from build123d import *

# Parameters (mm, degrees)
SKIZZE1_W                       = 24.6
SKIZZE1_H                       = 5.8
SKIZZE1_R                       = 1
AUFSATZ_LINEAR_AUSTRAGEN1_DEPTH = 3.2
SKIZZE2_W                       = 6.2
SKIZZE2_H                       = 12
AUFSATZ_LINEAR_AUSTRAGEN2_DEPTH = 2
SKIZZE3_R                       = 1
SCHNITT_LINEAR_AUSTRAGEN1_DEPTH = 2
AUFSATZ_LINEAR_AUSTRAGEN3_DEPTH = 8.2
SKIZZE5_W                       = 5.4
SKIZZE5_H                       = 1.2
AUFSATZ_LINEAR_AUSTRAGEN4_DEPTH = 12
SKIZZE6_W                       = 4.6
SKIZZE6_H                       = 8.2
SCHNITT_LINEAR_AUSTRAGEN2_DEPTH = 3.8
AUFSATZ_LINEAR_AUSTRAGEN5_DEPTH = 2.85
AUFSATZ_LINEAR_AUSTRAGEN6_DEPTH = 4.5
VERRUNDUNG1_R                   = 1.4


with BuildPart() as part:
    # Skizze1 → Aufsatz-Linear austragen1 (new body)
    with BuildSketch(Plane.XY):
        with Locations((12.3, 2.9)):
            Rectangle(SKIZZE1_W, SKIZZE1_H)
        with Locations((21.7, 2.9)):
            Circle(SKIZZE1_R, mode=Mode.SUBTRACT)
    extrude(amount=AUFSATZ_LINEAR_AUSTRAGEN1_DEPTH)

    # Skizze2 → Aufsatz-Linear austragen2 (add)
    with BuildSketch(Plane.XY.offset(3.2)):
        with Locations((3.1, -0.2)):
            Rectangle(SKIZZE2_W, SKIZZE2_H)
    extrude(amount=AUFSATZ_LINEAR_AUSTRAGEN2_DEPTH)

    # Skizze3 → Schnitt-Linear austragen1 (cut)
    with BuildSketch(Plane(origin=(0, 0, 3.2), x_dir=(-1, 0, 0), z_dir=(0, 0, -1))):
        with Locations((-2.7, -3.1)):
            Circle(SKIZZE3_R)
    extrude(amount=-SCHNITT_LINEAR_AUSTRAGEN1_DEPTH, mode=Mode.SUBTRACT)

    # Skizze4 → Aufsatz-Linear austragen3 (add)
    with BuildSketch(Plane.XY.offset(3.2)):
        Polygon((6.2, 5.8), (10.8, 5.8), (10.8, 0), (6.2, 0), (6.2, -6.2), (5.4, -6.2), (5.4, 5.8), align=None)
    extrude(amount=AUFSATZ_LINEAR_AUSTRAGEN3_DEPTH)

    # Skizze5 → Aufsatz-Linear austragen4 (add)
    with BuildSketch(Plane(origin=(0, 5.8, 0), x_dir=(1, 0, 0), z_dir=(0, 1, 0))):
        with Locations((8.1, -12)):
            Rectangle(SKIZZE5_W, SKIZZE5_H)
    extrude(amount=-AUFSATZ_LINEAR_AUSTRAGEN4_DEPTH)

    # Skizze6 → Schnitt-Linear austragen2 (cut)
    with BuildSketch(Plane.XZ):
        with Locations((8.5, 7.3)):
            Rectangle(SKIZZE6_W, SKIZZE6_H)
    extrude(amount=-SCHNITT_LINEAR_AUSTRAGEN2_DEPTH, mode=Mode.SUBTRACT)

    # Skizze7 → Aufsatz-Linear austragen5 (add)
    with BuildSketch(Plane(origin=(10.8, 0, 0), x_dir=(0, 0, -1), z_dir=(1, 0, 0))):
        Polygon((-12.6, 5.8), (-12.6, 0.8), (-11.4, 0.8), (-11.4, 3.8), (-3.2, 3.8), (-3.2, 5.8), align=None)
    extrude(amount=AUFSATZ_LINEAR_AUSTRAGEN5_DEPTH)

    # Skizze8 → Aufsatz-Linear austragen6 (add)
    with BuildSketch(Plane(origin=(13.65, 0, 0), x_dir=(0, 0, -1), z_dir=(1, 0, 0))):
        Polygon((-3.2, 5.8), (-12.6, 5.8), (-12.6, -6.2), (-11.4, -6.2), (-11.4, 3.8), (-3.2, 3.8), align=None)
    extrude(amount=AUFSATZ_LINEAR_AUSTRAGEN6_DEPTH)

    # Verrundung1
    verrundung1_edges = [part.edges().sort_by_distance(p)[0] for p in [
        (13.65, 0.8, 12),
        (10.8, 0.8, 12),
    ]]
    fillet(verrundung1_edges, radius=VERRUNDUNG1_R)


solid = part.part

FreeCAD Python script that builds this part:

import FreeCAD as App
import Part
import Sketcher

V = App.Vector


def edges_at(feature, points):
    """Names of the edges that pass closest to the given points."""
    edges = feature.Shape.Edges
    near = lambda p: min(range(len(edges)), key=lambda i: edges[i].distToShape(Part.Vertex(*p))[0])
    return sorted({f"Edge{near(p) + 1}" for p in points})

doc = App.newDocument("Part")
body = doc.addObject("PartDesign::Body", "Body")

# Sketch on XY plane
sketch1 = body.newObject("Sketcher::SketchObject", "Sketch")
sketch1.AttachmentSupport = (doc.getObject("XY_Plane"), [""])
sketch1.MapMode = "FlatFace"
sketch1.addGeometry([
    Part.LineSegment(V(0, 5.8, 0), V(0, 0, 0)),  # 0
    Part.LineSegment(V(0, 0, 0), V(24.6, 0, 0)),  # 1
    Part.LineSegment(V(24.6, 0, 0), V(24.6, 5.8, 0)),  # 2
    Part.LineSegment(V(24.6, 5.8, 0), V(0, 5.8, 0)),  # 3
    Part.Circle(V(21.7, 2.9, 0), V(0, 0, 1), 1),  # 4
], False)
sketch1.addConstraint([
    Sketcher.Constraint("Coincident", 0, 2, 1, 1),
    Sketcher.Constraint("Coincident", 1, 2, 2, 1),
    Sketcher.Constraint("Coincident", 2, 2, 3, 1),
    Sketcher.Constraint("Coincident", 3, 2, 0, 1),
    Sketcher.Constraint("Vertical", 0),
    Sketcher.Constraint("Horizontal", 1),
    Sketcher.Constraint("Vertical", 2),
    Sketcher.Constraint("Horizontal", 3),
    Sketcher.Constraint("Coincident", 0, 2, -1, 1),
    Sketcher.Constraint("Diameter", 4, 2.0),
    Sketcher.Constraint("DistanceX", 1, 1, 1, 2, 24.6),
    Sketcher.Constraint("DistanceY", 0, 2, 0, 1, 5.8),
    Sketcher.Constraint("DistanceX", -1, 1, 4, 3, 21.7),
    Sketcher.Constraint("DistanceY", -1, 1, 4, 3, 2.9),
])
pad1 = body.newObject("PartDesign::Pad", "Pad")
pad1.Profile = sketch1
pad1.Length = 3.2

# Sketch on XY plane
sketch2 = body.newObject("Sketcher::SketchObject", "Sketch001")
sketch2.AttachmentSupport = (doc.getObject("XY_Plane"), [""])
sketch2.MapMode = "FlatFace"
sketch2.AttachmentOffset = App.Placement(V(0, 0, 3.2), App.Rotation())
sketch2.addGeometry([
    Part.LineSegment(V(0, 6, 0), V(0, -6, 0)),
    Part.LineSegment(V(0, -6, 0), V(6, -6, 0)),
    Part.LineSegment(V(6, -6, 0), V(6, 6, 0)),
    Part.LineSegment(V(6, 6, 0), V(0, 6, 0)),
], False)
sketch2.addConstraint([
    Sketcher.Constraint("Coincident", 0, 2, 1, 1),
    Sketcher.Constraint("Coincident", 1, 2, 2, 1),
    Sketcher.Constraint("Coincident", 2, 2, 3, 1),
    Sketcher.Constraint("Coincident", 3, 2, 0, 1),
    Sketcher.Constraint("Vertical", 0),
    Sketcher.Constraint("Horizontal", 1),
    Sketcher.Constraint("Vertical", 2),
    Sketcher.Constraint("Horizontal", 3),
    Sketcher.Constraint("PointOnObject", 0, 2, -2),
    Sketcher.Constraint("DistanceY", 0, 2, 0, 1, 12.0),
    Sketcher.Constraint("DistanceX", 1, 1, 1, 2, 6.2),
    Sketcher.Constraint("DistanceY", 0, 2, -1, 1, 6.2),
])
pad2 = body.newObject("PartDesign::Pad", "Pad001")
pad2.Profile = sketch2
pad2.Length = 2

# Sketch on XY plane
sketch3 = body.newObject("Sketcher::SketchObject", "Sketch002")
sketch3.AttachmentSupport = (doc.getObject("XY_Plane"), [""])
sketch3.MapMode = "FlatFace"
sketch3.AttachmentOffset = App.Placement(V(0, 0, 3.2), App.Rotation())
sketch3.addGeometry(Part.Circle(V(2.7, -3.1, 0), V(0, 0, 1), 1), False)
sketch3.addConstraint([
    Sketcher.Constraint("Diameter", 0, 2.0),
    Sketcher.Constraint("DistanceX", -1, 1, 0, 3, 2.7),
    Sketcher.Constraint("DistanceY", 0, 3, -1, 1, 3.1),
])
pocket1 = body.newObject("PartDesign::Pocket", "Pocket")
pocket1.Profile = sketch3
pocket1.Length = 2
pocket1.Reversed = True

# Sketch on XY plane
sketch4 = body.newObject("Sketcher::SketchObject", "Sketch003")
sketch4.AttachmentSupport = (doc.getObject("XY_Plane"), [""])
sketch4.MapMode = "FlatFace"
sketch4.AttachmentOffset = App.Placement(V(0, 0, 3.2), App.Rotation())
sketch4.addGeometry([
    Part.LineSegment(V(10.8, 5.8, 0), V(5.4, 5.8, 0)),  # 0
    Part.LineSegment(V(5.4, 5.8, 0), V(5.4, -6.2, 0)),  # 1
    Part.LineSegment(V(5.4, -6.2, 0), V(6.2, -6.2, 0)),  # 2
    Part.LineSegment(V(6.2, -6.2, 0), V(6.2, 0, 0)),  # 3
    Part.LineSegment(V(6.2, 0, 0), V(10.8, 0, 0)),  # 4
    Part.LineSegment(V(10.8, 0, 0), V(10.8, 5.8, 0)),  # 5
], False)
sketch4.addConstraint([
    Sketcher.Constraint("Coincident", 0, 2, 1, 1),
    Sketcher.Constraint("Coincident", 1, 2, 2, 1),
    Sketcher.Constraint("Coincident", 2, 2, 3, 1),
    Sketcher.Constraint("Coincident", 3, 2, 4, 1),
    Sketcher.Constraint("Coincident", 4, 2, 5, 1),
    Sketcher.Constraint("Coincident", 5, 2, 0, 1),
    Sketcher.Constraint("Horizontal", 0),
    Sketcher.Constraint("Vertical", 1),
    Sketcher.Constraint("Horizontal", 2),
    Sketcher.Constraint("Vertical", 3),
    Sketcher.Constraint("Horizontal", 4),
    Sketcher.Constraint("Vertical", 5),
    Sketcher.Constraint("PointOnObject", 3, 2, -1),
    Sketcher.Constraint("DistanceY", 1, 2, 1, 1, 12.0),
    Sketcher.Constraint("DistanceX", 0, 2, 0, 1, 5.4),
    Sketcher.Constraint("DistanceX", 2, 1, 2, 2, 0.8),
    Sketcher.Constraint("DistanceY", 3, 1, 3, 2, 6.2),
    Sketcher.Constraint("DistanceX", -1, 1, 0, 2, 5.4),
])
pad3 = body.newObject("PartDesign::Pad", "Pad002")
pad3.Profile = sketch4
pad3.Length = 8.2

# Sketch on XZ plane
sketch5 = body.newObject("Sketcher::SketchObject", "Sketch004")
sketch5.AttachmentSupport = (doc.getObject("XZ_Plane"), [""])
sketch5.MapMode = "FlatFace"
sketch5.AttachmentOffset = App.Placement(V(0, 0, -5.8), App.Rotation())
sketch5.addGeometry([
    Part.LineSegment(V(5.4, 11.4, 0), V(5.4, 12.6, 0)),
    Part.LineSegment(V(5.4, 12.6, 0), V(10.8, 12.6, 0)),
    Part.LineSegment(V(10.8, 12.6, 0), V(10.8, 11.4, 0)),
    Part.LineSegment(V(10.8, 11.4, 0), V(5.4, 11.4, 0)),
], False)
sketch5.addConstraint([
    Sketcher.Constraint("Coincident", 0, 2, 1, 1),
    Sketcher.Constraint("Coincident", 1, 2, 2, 1),
    Sketcher.Constraint("Coincident", 2, 2, 3, 1),
    Sketcher.Constraint("Coincident", 3, 2, 0, 1),
    Sketcher.Constraint("Vertical", 0),
    Sketcher.Constraint("Horizontal", 1),
    Sketcher.Constraint("Vertical", 2),
    Sketcher.Constraint("Horizontal", 3),
    Sketcher.Constraint("DistanceX", 1, 1, 1, 2, 5.4),
    Sketcher.Constraint("DistanceY", 0, 1, 0, 2, 1.2),
    Sketcher.Constraint("DistanceX", -1, 1, 0, 2, 5.4),
    Sketcher.Constraint("DistanceY", -1, 1, 0, 2, 12.6),
])
pad4 = body.newObject("PartDesign::Pad", "Pad003")
pad4.Profile = sketch5
pad4.Length = 12

# Sketch on XZ plane
sketch6 = body.newObject("Sketcher::SketchObject", "Sketch005")
sketch6.AttachmentSupport = (doc.getObject("XZ_Plane"), [""])
sketch6.MapMode = "FlatFace"
sketch6.addGeometry([
    Part.LineSegment(V(6.2, 11.4, 0), V(6.2, 3.2, 0)),
    Part.LineSegment(V(6.2, 3.2, 0), V(10.8, 3.2, 0)),
    Part.LineSegment(V(10.8, 3.2, 0), V(10.8, 11.4, 0)),
    Part.LineSegment(V(10.8, 11.4, 0), V(6.2, 11.4, 0)),
], False)
sketch6.addConstraint([
    Sketcher.Constraint("Coincident", 0, 2, 1, 1),
    Sketcher.Constraint("Coincident", 1, 2, 2, 1),
    Sketcher.Constraint("Coincident", 2, 2, 3, 1),
    Sketcher.Constraint("Coincident", 3, 2, 0, 1),
    Sketcher.Constraint("Vertical", 0),
    Sketcher.Constraint("Horizontal", 1),
    Sketcher.Constraint("Vertical", 2),
    Sketcher.Constraint("Horizontal", 3),
    Sketcher.Constraint("DistanceX", 1, 1, 1, 2, 4.6),
    Sketcher.Constraint("DistanceY", 0, 2, 0, 1, 8.2),
    Sketcher.Constraint("DistanceX", -1, 1, 0, 2, 6.2),
    Sketcher.Constraint("DistanceY", -1, 1, 0, 2, 3.2),
])
pocket2 = body.newObject("PartDesign::Pocket", "Pocket001")
pocket2.Profile = sketch6
pocket2.Length = 3.8

# Sketch on YZ plane
sketch7 = body.newObject("Sketcher::SketchObject", "Sketch006")
sketch7.AttachmentSupport = (doc.getObject("YZ_Plane"), [""])
sketch7.MapMode = "FlatFace"
sketch7.AttachmentOffset = App.Placement(V(0, 0, 10.8), App.Rotation())
sketch7.addGeometry([
    Part.LineSegment(V(5.8, 12.6, 0), V(0.8, 12.6, 0)),  # 0
    Part.LineSegment(V(0.8, 12.6, 0), V(0.8, 11.4, 0)),  # 1
    Part.LineSegment(V(0.8, 11.4, 0), V(3.8, 11.4, 0)),  # 2
    Part.LineSegment(V(3.8, 11.4, 0), V(3.8, 3.2, 0)),  # 3
    Part.LineSegment(V(3.8, 3.2, 0), V(5.8, 3.2, 0)),  # 4
    Part.LineSegment(V(5.8, 3.2, 0), V(5.8, 12.6, 0)),  # 5
], False)
sketch7.addConstraint([
    Sketcher.Constraint("Coincident", 0, 2, 1, 1),
    Sketcher.Constraint("Coincident", 1, 2, 2, 1),
    Sketcher.Constraint("Coincident", 2, 2, 3, 1),
    Sketcher.Constraint("Coincident", 3, 2, 4, 1),
    Sketcher.Constraint("Coincident", 4, 2, 5, 1),
    Sketcher.Constraint("Coincident", 5, 2, 0, 1),
    Sketcher.Constraint("Horizontal", 0),
    Sketcher.Constraint("Vertical", 1),
    Sketcher.Constraint("Horizontal", 2),
    Sketcher.Constraint("Vertical", 3),
    Sketcher.Constraint("Horizontal", 4),
    Sketcher.Constraint("Vertical", 5),
    Sketcher.Constraint("DistanceX", 0, 2, 0, 1, 5.0),
    Sketcher.Constraint("DistanceX", 2, 1, 2, 2, 3.0),
    Sketcher.Constraint("DistanceY", 1, 2, 1, 1, 1.2),
    Sketcher.Constraint("DistanceY", 3, 2, 3, 1, 8.2),
    Sketcher.Constraint("DistanceX", -1, 1, 0, 2, 0.8),
    Sketcher.Constraint("DistanceY", -1, 1, 0, 2, 12.6),
])
pad5 = body.newObject("PartDesign::Pad", "Pad004")
pad5.Profile = sketch7
pad5.Length = 2.85

# Sketch on YZ plane
sketch8 = body.newObject("Sketcher::SketchObject", "Sketch007")
sketch8.AttachmentSupport = (doc.getObject("YZ_Plane"), [""])
sketch8.MapMode = "FlatFace"
sketch8.AttachmentOffset = App.Placement(V(0, 0, 13.65), App.Rotation())
sketch8.addGeometry([
    Part.LineSegment(V(5.8, 3.2, 0), V(5.8, 12.6, 0)),  # 0
    Part.LineSegment(V(5.8, 12.6, 0), V(-6.2, 12.6, 0)),  # 1
    Part.LineSegment(V(-6.2, 12.6, 0), V(-6.2, 11.4, 0)),  # 2
    Part.LineSegment(V(-6.2, 11.4, 0), V(3.8, 11.4, 0)),  # 3
    Part.LineSegment(V(3.8, 11.4, 0), V(3.8, 3.2, 0)),  # 4
    Part.LineSegment(V(3.8, 3.2, 0), V(5.8, 3.2, 0)),  # 5
], False)
sketch8.addConstraint([
    Sketcher.Constraint("Coincident", 0, 2, 1, 1),
    Sketcher.Constraint("Coincident", 1, 2, 2, 1),
    Sketcher.Constraint("Coincident", 2, 2, 3, 1),
    Sketcher.Constraint("Coincident", 3, 2, 4, 1),
    Sketcher.Constraint("Coincident", 4, 2, 5, 1),
    Sketcher.Constraint("Coincident", 5, 2, 0, 1),
    Sketcher.Constraint("Vertical", 0),
    Sketcher.Constraint("Horizontal", 1),
    Sketcher.Constraint("Vertical", 2),
    Sketcher.Constraint("Horizontal", 3),
    Sketcher.Constraint("Vertical", 4),
    Sketcher.Constraint("Horizontal", 5),
    Sketcher.Constraint("DistanceX", 1, 2, 1, 1, 12.0),
    Sketcher.Constraint("DistanceX", 3, 1, 3, 2, 10.0),
    Sketcher.Constraint("DistanceY", 0, 1, 0, 2, 9.4),
    Sketcher.Constraint("DistanceY", 2, 2, 2, 1, 1.2),
    Sketcher.Constraint("DistanceX", -1, 1, 0, 2, 5.8),
    Sketcher.Constraint("DistanceY", -1, 1, 0, 2, 12.6),
])
pad6 = body.newObject("PartDesign::Pad", "Pad005")
pad6.Profile = sketch8
pad6.Length = 4.5
doc.recompute()

fillet = body.newObject("PartDesign::Fillet", "Fillet")
fillet.Base = (pad6, edges_at(pad6, [(13.65, 0.8, 12), (10.8, 0.8, 12)]))
fillet.Radius = 1.4

doc.recompute()
